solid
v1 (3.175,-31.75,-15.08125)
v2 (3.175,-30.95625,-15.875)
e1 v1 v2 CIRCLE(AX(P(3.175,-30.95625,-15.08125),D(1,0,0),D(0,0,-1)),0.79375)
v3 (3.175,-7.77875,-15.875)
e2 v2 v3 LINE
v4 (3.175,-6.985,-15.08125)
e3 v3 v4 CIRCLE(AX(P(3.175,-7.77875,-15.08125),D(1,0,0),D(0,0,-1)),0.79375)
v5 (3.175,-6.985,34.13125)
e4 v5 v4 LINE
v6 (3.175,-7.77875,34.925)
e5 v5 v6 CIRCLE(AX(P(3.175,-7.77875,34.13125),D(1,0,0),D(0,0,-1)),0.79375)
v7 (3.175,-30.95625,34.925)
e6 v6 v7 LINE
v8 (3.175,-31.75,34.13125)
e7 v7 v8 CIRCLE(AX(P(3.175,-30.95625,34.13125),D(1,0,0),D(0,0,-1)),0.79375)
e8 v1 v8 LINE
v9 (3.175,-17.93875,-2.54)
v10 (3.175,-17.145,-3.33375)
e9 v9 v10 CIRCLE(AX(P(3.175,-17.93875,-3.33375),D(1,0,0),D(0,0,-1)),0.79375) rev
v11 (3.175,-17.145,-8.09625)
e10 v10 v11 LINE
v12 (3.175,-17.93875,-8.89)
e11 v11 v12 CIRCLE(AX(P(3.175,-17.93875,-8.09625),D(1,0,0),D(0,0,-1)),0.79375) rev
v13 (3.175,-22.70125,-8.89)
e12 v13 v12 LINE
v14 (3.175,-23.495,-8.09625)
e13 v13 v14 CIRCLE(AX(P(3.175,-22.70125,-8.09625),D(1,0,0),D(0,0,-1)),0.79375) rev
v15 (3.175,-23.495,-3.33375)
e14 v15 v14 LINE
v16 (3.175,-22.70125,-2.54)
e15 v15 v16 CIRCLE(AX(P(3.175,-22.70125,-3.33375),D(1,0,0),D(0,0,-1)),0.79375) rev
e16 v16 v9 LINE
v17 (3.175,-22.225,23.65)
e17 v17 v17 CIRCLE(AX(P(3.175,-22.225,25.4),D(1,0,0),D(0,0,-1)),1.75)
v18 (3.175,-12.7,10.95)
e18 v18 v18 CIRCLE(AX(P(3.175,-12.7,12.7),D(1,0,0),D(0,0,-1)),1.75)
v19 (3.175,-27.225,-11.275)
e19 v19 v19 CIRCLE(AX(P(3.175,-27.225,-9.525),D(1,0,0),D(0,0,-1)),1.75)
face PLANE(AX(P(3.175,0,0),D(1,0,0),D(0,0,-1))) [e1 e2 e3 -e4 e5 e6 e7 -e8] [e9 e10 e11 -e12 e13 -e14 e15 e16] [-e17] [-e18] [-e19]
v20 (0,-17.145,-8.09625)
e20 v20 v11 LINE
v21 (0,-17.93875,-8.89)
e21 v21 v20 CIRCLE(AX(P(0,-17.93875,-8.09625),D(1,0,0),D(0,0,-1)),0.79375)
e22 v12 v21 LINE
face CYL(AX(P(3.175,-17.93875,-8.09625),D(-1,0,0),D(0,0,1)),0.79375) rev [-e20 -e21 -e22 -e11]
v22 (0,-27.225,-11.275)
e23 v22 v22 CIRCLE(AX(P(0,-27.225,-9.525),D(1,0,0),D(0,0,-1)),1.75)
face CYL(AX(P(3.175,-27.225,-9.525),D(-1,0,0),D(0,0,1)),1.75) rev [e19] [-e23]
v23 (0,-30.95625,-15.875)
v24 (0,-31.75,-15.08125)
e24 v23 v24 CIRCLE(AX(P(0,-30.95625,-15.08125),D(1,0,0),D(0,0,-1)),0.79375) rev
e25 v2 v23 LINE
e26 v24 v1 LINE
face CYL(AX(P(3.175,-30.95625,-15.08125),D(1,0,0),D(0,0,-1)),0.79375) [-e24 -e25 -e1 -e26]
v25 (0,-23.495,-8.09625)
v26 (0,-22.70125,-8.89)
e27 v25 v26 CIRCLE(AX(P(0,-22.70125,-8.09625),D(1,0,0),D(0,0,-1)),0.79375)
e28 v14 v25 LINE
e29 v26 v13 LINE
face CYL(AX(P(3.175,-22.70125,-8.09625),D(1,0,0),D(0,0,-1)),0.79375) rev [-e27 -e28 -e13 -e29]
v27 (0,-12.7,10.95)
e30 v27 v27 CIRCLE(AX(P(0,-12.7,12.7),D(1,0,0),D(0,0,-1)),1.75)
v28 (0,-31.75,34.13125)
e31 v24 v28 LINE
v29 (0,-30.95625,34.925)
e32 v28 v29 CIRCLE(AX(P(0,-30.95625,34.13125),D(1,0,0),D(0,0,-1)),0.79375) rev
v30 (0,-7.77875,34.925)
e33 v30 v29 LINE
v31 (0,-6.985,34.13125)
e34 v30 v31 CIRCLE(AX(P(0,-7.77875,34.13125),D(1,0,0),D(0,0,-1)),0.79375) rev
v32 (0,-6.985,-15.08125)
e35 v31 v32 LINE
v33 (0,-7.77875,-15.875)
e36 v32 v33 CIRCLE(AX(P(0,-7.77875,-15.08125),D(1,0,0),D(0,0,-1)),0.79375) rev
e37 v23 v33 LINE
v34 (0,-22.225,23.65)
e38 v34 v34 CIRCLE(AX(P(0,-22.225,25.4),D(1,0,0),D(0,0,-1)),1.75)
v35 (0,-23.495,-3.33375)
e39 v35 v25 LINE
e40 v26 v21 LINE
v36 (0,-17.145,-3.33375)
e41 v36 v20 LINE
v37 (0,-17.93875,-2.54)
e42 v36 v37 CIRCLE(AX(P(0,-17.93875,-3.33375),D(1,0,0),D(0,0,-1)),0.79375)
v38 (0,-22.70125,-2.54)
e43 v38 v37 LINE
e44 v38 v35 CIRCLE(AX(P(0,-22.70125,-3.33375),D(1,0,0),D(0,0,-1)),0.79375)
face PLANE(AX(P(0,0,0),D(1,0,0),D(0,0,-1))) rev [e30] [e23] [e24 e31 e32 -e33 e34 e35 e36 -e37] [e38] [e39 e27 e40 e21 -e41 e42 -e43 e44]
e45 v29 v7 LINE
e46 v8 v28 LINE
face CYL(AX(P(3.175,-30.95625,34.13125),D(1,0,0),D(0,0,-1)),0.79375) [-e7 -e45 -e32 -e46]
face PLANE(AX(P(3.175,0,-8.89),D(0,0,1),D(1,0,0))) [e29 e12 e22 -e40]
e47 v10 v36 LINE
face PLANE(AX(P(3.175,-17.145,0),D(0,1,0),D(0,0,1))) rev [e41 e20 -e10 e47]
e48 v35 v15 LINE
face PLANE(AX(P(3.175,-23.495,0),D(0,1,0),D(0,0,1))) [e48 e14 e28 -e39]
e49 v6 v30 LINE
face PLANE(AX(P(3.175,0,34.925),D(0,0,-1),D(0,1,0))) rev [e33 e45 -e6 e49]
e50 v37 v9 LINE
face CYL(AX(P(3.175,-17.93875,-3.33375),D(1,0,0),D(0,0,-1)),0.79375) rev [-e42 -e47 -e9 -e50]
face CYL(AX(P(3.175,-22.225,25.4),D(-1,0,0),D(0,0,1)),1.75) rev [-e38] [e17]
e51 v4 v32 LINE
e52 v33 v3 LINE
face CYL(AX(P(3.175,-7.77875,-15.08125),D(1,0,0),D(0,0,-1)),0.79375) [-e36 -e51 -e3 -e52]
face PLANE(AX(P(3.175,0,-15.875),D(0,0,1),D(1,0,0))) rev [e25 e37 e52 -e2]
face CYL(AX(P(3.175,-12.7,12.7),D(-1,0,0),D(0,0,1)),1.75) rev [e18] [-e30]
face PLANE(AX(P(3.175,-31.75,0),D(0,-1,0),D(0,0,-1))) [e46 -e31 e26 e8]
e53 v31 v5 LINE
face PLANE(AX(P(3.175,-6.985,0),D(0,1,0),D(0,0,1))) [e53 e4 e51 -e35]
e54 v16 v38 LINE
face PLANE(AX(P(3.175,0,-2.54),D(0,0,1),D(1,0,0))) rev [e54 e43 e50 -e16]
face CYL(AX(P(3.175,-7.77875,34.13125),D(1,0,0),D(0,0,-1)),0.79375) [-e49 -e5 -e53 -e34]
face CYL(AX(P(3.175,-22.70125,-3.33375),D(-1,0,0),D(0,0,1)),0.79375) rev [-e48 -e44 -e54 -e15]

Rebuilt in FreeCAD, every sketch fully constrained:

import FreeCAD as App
import Part
import Sketcher
from FreeCAD import Vector
Q = App.Units.Quantity


def edges_at(feature, points):
    """Names of the edges that pass closest to the given points."""
    edges = feature.Shape.Edges
    near = lambda p: min(range(len(edges)), key=lambda i: edges[i].distToShape(Part.Vertex(*p))[0])
    return sorted({f"Edge{near(p) + 1}" for p in points})

doc = App.newDocument("Part")
params = doc.addObject("Spreadsheet::Sheet", "Params")
for row, (alias, value) in enumerate([
    ("sketch1_height", "2 in"),
    ("sketch1_width", "0.25 in"),
    ("sketch1_width2", "0.975 in"),
    ("pad1_length", "0.125 in"),
    ("fillet_radius", "0.03125 in"),
], start=1):
    params.set(f"A{row}", alias)
    params.set(f"B{row}", "=" + value)
    params.setAlias(f"B{row}", alias)

body = doc.addObject("PartDesign::Body", "Body")

sketch1 = body.newObject("Sketcher::SketchObject", "Sketch")
sketch1.AttachmentSupport = (doc.getObject("YZ_Plane"), [""])
sketch1.MapMode = "FlatFace"
sketch1.addGeometry(Part.LineSegment(Vector(-31.75, 34.925, 0), Vector(-31.75, -15.875, 0)), False)
sketch1.addGeometry(Part.LineSegment(Vector(-31.75, -15.875, 0), Vector(-6.985, -15.875, 0)), False)
sketch1.addGeometry(Part.LineSegment(Vector(-6.985, -15.875, 0), Vector(-6.985, 34.925, 0)), False)
sketch1.addGeometry(Part.LineSegment(Vector(-6.985, 34.925, 0), Vector(-31.75, 34.925, 0)), False)
sketch1.addGeometry(Part.Circle(Vector(-27.225, -9.525, 0), Vector(0, 0, 1), 1.75), False)
sketch1.addGeometry(Part.LineSegment(Vector(-17.145, -8.89, 0), Vector(-23.495, -8.89, 0)), False)
sketch1.addGeometry(Part.LineSegment(Vector(-23.495, -8.89, 0), Vector(-23.495, -2.54, 0)), False)
sketch1.addGeometry(Part.LineSegment(Vector(-23.495, -2.54, 0), Vector(-17.145, -2.54, 0)), False)
sketch1.addGeometry(Part.LineSegment(Vector(-17.145, -2.54, 0), Vector(-17.145, -8.89, 0)), False)
sketch1.addGeometry(Part.Circle(Vector(-22.225, 25.4, 0), Vector(0, 0, 1), 1.75), False)
sketch1.addGeometry(Part.Circle(Vector(-12.7, 12.7, 0), Vector(0, 0, 1), 1.75), False)
sketch1.addConstraint(Sketcher.Constraint("Coincident", 0, 2, 1, 1))
sketch1.addConstraint(Sketcher.Constraint("Coincident", 1, 2, 2, 1))
sketch1.addConstraint(Sketcher.Constraint("Coincident", 2, 2, 3, 1))
sketch1.addConstraint(Sketcher.Constraint("Coincident", 3, 2, 0, 1))
sketch1.addConstraint(Sketcher.Constraint("Coincident", 5, 2, 6, 1))
sketch1.addConstraint(Sketcher.Constraint("Coincident", 6, 2, 7, 1))
sketch1.addConstraint(Sketcher.Constraint("Coincident", 7, 2, 8, 1))
sketch1.addConstraint(Sketcher.Constraint("Coincident", 8, 2, 5, 1))
sketch1.addConstraint(Sketcher.Constraint("Vertical", 0))
sketch1.addConstraint(Sketcher.Constraint("Horizontal", 1))
sketch1.addConstraint(Sketcher.Constraint("Vertical", 2))
sketch1.addConstraint(Sketcher.Constraint("Horizontal", 3))
sketch1.addConstraint(Sketcher.Constraint("Horizontal", 5))
sketch1.addConstraint(Sketcher.Constraint("Vertical", 6))
sketch1.addConstraint(Sketcher.Constraint("Horizontal", 7))
sketch1.addConstraint(Sketcher.Constraint("Vertical", 8))
sketch1.addConstraint(Sketcher.Constraint("Equal", 4, 9))
sketch1.addConstraint(Sketcher.Constraint("Equal", 9, 10))
sketch1.addConstraint(Sketcher.Constraint("Equal", 7, 6))
sketch1.addConstraint(Sketcher.Constraint("DistanceY", 0, 2, 0, 1, Q("2 in")))
sketch1.addConstraint(Sketcher.Constraint("DistanceY", -1, 1, 9, 3, Q("1 in")))
sketch1.addConstraint(Sketcher.Constraint("DistanceX", 5, 2, 5, 1, Q("0.25 in")))
sketch1.addConstraint(Sketcher.Constraint("DistanceX", 10, 3, -1, 1, Q("0.5 in")))
sketch1.addConstraint(Sketcher.Constraint("DistanceY", -1, 1, 10, 3, Q("0.5 in")))
sketch1.addConstraint(Sketcher.Constraint("DistanceY", 6, 2, -1, 1, Q("0.1 in")))
sketch1.addConstraint(Sketcher.Constraint("DistanceX", 9, 3, 1, 2, Q("0.6 in")))
sketch1.addConstraint(Sketcher.Constraint("DistanceX", 7, 2, 1, 2, Q("0.4 in")))
sketch1.addConstraint(Sketcher.Constraint("Diameter", 4, Q("3.5 mm")))
sketch1.addConstraint(Sketcher.Constraint("DistanceX", 1, 1, 1, 2, Q("0.975 in")))
sketch1.addConstraint(Sketcher.Constraint("DistanceX", 0, 2, -1, 1, Q("1.25 in")))
sketch1.addConstraint(Sketcher.Constraint("DistanceY", 0, 2, 4, 3, Q("0.25 in")))
sketch1.addConstraint(Sketcher.Constraint("DistanceY", 4, 3, -1, 1, Q("0.375 in")))
sketch1.addConstraint(Sketcher.Constraint("DistanceX", 4, 3, -1, 1, Q("27.225 mm")))
sketch1.setExpression("Constraints[19]", "Params.sketch1_height")
sketch1.setExpression("Constraints[21]", "Params.sketch1_width")
sketch1.setExpression("Constraints[28]", "Params.sketch1_width2")
pad1 = body.newObject("PartDesign::Pad", "Pad")
pad1.Profile = sketch1
pad1.setExpression("Length", "Params.pad1_length")
doc.recompute()

fillet = body.newObject("PartDesign::Fillet", "Fillet")
fillet.Base = (pad1, edges_at(pad1, [
    (1.587, -23.495, -2.54),
    (1.587, -23.495, -8.89),
    (1.587, -17.145, -8.89),
    (1.587, -17.145, -2.54),
    (1.587, -6.985, -15.875),
    (1.587, -31.75, -15.875),
    (1.587, -31.75, 34.925),
    (1.587, -6.985, 34.925),
]))
fillet.setExpression("Radius", "Params.fillet_radius")

doc.recompute()
